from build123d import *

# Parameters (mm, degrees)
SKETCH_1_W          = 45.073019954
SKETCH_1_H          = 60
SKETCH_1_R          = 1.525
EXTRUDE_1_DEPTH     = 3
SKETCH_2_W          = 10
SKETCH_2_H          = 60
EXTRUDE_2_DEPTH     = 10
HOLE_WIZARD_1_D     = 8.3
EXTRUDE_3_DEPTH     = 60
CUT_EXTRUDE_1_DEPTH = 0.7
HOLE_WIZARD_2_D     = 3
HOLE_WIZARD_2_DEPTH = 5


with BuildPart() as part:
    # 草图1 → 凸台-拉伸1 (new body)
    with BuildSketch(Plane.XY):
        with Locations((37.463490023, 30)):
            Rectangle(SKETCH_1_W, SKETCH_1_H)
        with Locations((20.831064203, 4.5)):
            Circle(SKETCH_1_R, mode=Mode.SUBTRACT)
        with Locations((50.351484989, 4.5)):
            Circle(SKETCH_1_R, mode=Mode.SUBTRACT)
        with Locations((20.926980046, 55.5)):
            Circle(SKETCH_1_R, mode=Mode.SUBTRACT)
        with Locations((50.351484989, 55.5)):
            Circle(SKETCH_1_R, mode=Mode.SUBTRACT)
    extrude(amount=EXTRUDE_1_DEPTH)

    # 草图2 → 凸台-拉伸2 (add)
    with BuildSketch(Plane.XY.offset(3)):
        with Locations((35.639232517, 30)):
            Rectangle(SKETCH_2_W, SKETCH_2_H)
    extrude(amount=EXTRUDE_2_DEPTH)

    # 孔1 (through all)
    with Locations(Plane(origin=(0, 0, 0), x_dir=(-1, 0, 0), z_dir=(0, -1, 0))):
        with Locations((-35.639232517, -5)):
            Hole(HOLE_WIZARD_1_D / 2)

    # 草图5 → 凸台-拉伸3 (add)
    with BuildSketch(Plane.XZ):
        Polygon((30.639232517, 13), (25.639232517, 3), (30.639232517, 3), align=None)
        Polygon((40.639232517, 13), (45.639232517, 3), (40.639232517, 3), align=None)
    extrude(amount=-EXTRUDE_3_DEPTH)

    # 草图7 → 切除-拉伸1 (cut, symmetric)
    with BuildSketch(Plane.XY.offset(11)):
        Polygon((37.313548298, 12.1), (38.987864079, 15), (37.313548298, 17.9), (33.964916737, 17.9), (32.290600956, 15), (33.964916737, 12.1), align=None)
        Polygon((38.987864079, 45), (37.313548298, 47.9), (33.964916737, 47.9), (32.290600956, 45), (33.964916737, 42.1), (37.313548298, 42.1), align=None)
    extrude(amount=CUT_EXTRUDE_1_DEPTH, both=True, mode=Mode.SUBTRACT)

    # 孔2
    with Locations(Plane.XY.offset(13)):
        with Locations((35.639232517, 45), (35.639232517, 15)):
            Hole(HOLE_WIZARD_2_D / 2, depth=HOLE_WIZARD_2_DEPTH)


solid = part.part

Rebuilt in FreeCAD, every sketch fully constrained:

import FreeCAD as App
import Part
import Sketcher
from FreeCAD import Vector
Q = App.Units.Quantity

doc = App.newDocument("Part")
body = doc.addObject("PartDesign::Body", "Body")

sketch1 = body.newObject("Sketcher::SketchObject", "Sketch")
sketch1.AttachmentSupport = (doc.getObject("XY_Plane"), [""])
sketch1.MapMode = "FlatFace"
sketch1.addGeometry(Part.LineSegment(Vector(14.9, 60, 0), Vector(14.9, 0, 0)), False)
sketch1.addGeometry(Part.LineSegment(Vector(14.9, 0, 0), Vector(60, 0, 0)), False)
sketch1.addGeometry(Part.LineSegment(Vector(60, 0, 0), Vector(60, 60, 0)), False)
sketch1.addGeometry(Part.LineSegment(Vector(60, 60, 0), Vector(14.9, 60, 0)), False)
sketch1.addGeometry(Part.Circle(Vector(20.8, 4.5, 0), Vector(0, 0, 1), 1.5), False)
sketch1.addGeometry(Part.Circle(Vector(50.4, 4.5, 0), Vector(0, 0, 1), 1.5), False)
sketch1.addGeometry(Part.Circle(Vector(20.9, 55.5, 0), Vector(0, 0, 1), 1.5), False)
sketch1.addGeometry(Part.Circle(Vector(50.4, 55.5, 0), Vector(0, 0, 1), 1.5), False)
sketch1.addConstraint(Sketcher.Constraint("Coincident", 0, 2, 1, 1))
sketch1.addConstraint(Sketcher.Constraint("Coincident", 1, 2, 2, 1))
sketch1.addConstraint(Sketcher.Constraint("Coincident", 2, 2, 3, 1))
sketch1.addConstraint(Sketcher.Constraint("Coincident", 3, 2, 0, 1))
sketch1.addConstraint(Sketcher.Constraint("Vertical", 0))
sketch1.addConstraint(Sketcher.Constraint("Horizontal", 1))
sketch1.addConstraint(Sketcher.Constraint("Vertical", 2))
sketch1.addConstraint(Sketcher.Constraint("Horizontal", 3))
sketch1.addConstraint(Sketcher.Constraint("Equal", 4, 5))
sketch1.addConstraint(Sketcher.Constraint("Equal", 5, 6))
sketch1.addConstraint(Sketcher.Constraint("Equal", 6, 7))
sketch1.addConstraint(Sketcher.Constraint("PointOnObject", 0, 2, -1))
sketch1.addConstraint(Sketcher.Constraint("Horizontal", 4, 3, 5, 3))
sketch1.addConstraint(Sketcher.Constraint("Horizontal", 6, 3, 7, 3))
sketch1.addConstraint(Sketcher.Constraint("Vertical", 5, 3, 7, 3))
sketch1.addConstraint(Sketcher.Constraint("Diameter", 4, Q("3.05 mm")))
sketch1.addConstraint(Sketcher.Constraint("DistanceY", 0, 2, 0, 1, Q("60 mm")))
sketch1.addConstraint(Sketcher.Constraint("DistanceX", -1, 1, 1, 2, Q("60 mm")))
sketch1.addConstraint(Sketcher.Constraint("DistanceY", 4, 3, 6, 3, Q("51 mm")))
sketch1.addConstraint(Sketcher.Constraint("DistanceX", 0, 2, 6, 3, Q("6 mm")))
sketch1.addConstraint(Sketcher.Constraint("DistanceY", -1, 1, 4, 3, Q("4.5 mm")))
sketch1.addConstraint(Sketcher.Constraint("DistanceX", 1, 1, 1, 2, Q("45.07302 mm")))
sketch1.addConstraint(Sketcher.Constraint("DistanceX", 4, 3, 5, 3, Q("29.520421 mm")))
sketch1.addConstraint(Sketcher.Constraint("DistanceX", -1, 1, 4, 3, Q("20.831064 mm")))
pad1 = body.newObject("PartDesign::Pad", "Pad")
pad1.Profile = sketch1
pad1.Length = 3

sketch2 = body.newObject("Sketcher::SketchObject", "Sketch001")
sketch2.AttachmentSupport = (doc.getObject("XY_Plane"), [""])
sketch2.MapMode = "FlatFace"
sketch2.AttachmentOffset = App.Placement(Vector(0, 0, 3), App.Rotation())
sketch2.addGeometry(Part.LineSegment(Vector(31, 60, 0), Vector(31, 0, 0)), False)
sketch2.addGeometry(Part.LineSegment(Vector(31, 0, 0), Vector(41, 0, 0)), False)
sketch2.addGeometry(Part.LineSegment(Vector(41, 0, 0), Vector(41, 60, 0)), False)
sketch2.addGeometry(Part.LineSegment(Vector(41, 60, 0), Vector(31, 60, 0)), False)
sketch2.addConstraint(Sketcher.Constraint("Coincident", 0, 2, 1, 1))
sketch2.addConstraint(Sketcher.Constraint("Coincident", 1, 2, 2, 1))
sketch2.addConstraint(Sketcher.Constraint("Coincident", 2, 2, 3, 1))
sketch2.addConstraint(Sketcher.Constraint("Coincident", 3, 2, 0, 1))
sketch2.addConstraint(Sketcher.Constraint("Vertical", 0))
sketch2.addConstraint(Sketcher.Constraint("Horizontal", 1))
sketch2.addConstraint(Sketcher.Constraint("Vertical", 2))
sketch2.addConstraint(Sketcher.Constraint("Horizontal", 3))
sketch2.addConstraint(Sketcher.Constraint("PointOnObject", 0, 2, -1))
sketch2.addConstraint(Sketcher.Constraint("DistanceX", 1, 1, 1, 2, Q("10 mm")))
sketch2.addConstraint(Sketcher.Constraint("DistanceY", 0, 2, 0, 1, Q("60 mm")))
sketch2.addConstraint(Sketcher.Constraint("DistanceX", -1, 1, 0, 2, Q("30.639233 mm")))
pad2 = body.newObject("PartDesign::Pad", "Pad001")
pad2.Profile = sketch2
pad2.Length = 10

sketch3 = body.newObject("Sketcher::SketchObject", "Sketch002")
sketch3.AttachmentSupport = (doc.getObject("XZ_Plane"), [""])
sketch3.MapMode = "FlatFace"
sketch3.addGeometry(Part.Circle(Vector(35.6, 5, 0), Vector(0, 0, 1), 4.2), False)
sketch3.addConstraint(Sketcher.Constraint("Diameter", 0, Q("8.3 mm")))
sketch3.addConstraint(Sketcher.Constraint("DistanceY", -1, 1, 0, 3, Q("5 mm")))
sketch3.addConstraint(Sketcher.Constraint("DistanceX", -1, 1, 0, 3, Q("35.639233 mm")))
doc.recompute()
hole = body.newObject("PartDesign::Hole", "Hole")
hole.Profile = sketch3
hole.ThreadType = "None"
hole.Diameter = 8.3
hole.DepthType = "ThroughAll"

sketch4 = body.newObject("Sketcher::SketchObject", "Sketch003")
sketch4.AttachmentSupport = (doc.getObject("XZ_Plane"), [""])
sketch4.MapMode = "FlatFace"
sketch4.addGeometry(Part.LineSegment(Vector(31, 13, 0), Vector(26, 3, 0)), False)
sketch4.addGeometry(Part.LineSegment(Vector(26, 3, 0), Vector(31, 3, 0)), False)
sketch4.addGeometry(Part.LineSegment(Vector(31, 3, 0), Vector(31, 13, 0)), False)
sketch4.addGeometry(Part.LineSegment(Vector(46, 3, 0), Vector(41, 13, 0)), False)
sketch4.addGeometry(Part.LineSegment(Vector(41, 13, 0), Vector(41, 3, 0)), False)
sketch4.addGeometry(Part.LineSegment(Vector(41, 3, 0), Vector(46, 3, 0)), False)
sketch4.addConstraint(Sketcher.Constraint("Coincident", 0, 2, 1, 1))
sketch4.addConstraint(Sketcher.Constraint("Coincident", 1, 2, 2, 1))
sketch4.addConstraint(Sketcher.Constraint("Coincident", 2, 2, 0, 1))
sketch4.addConstraint(Sketcher.Constraint("Coincident", 3, 2, 4, 1))
sketch4.addConstraint(Sketcher.Constraint("Coincident", 4, 2, 5, 1))
sketch4.addConstraint(Sketcher.Constraint("Coincident", 5, 2, 3, 1))
sketch4.addConstraint(Sketcher.Constraint("Horizontal", 1))
sketch4.addConstraint(Sketcher.Constraint("Vertical", 2))
sketch4.addConstraint(Sketcher.Constraint("Vertical", 4))
sketch4.addConstraint(Sketcher.Constraint("Horizontal", 5))
sketch4.addConstraint(Sketcher.Constraint("Horizontal", 2, 2, 3, 2))
sketch4.addConstraint(Sketcher.Constraint("Horizontal", 1, 2, 4, 2))
sketch4.addConstraint(Sketcher.Constraint("Equal", 1, 5))
sketch4.addConstraint(Sketcher.Constraint("DistanceX", 1, 1, 1, 2, Q("5 mm")))
sketch4.addConstraint(Sketcher.Constraint("DistanceY", 2, 1, 2, 2, Q("10 mm")))
sketch4.addConstraint(Sketcher.Constraint("DistanceY", -1, 1, 0, 2, Q("3 mm")))
sketch4.addConstraint(Sketcher.Constraint("DistanceX", 2, 2, 3, 2, Q("10 mm")))
sketch4.addConstraint(Sketcher.Constraint("DistanceX", -1, 1, 0, 2, Q("25.639233 mm")))
pad3 = body.newObject("PartDesign::Pad", "Pad002")
pad3.Profile = sketch4
pad3.Length = 60
pad3.Reversed = True

sketch5 = body.newObject("Sketcher::SketchObject", "Sketch004")
sketch5.AttachmentSupport = (doc.getObject("XY_Plane"), [""])
sketch5.MapMode = "FlatFace"
sketch5.AttachmentOffset = App.Placement(Vector(0, 0, 11), App.Rotation())
sketch5.addGeometry(Part.LineSegment(Vector(37.3, 12.1, 0), Vector(39, 15, 0)), False)
sketch5.addGeometry(Part.LineSegment(Vector(39, 15, 0), Vector(37.3, 17.9, 0)), False)
sketch5.addGeometry(Part.LineSegment(Vector(37.3, 17.9, 0), Vector(34, 17.9, 0)), False)
sketch5.addGeometry(Part.LineSegment(Vector(34, 17.9, 0), Vector(32.3, 15, 0)), False)
sketch5.addGeometry(Part.LineSegment(Vector(32.3, 15, 0), Vector(34, 12.1, 0)), False)
sketch5.addGeometry(Part.LineSegment(Vector(34, 12.1, 0), Vector(37.3, 12.1, 0)), False)
sketch5.addGeometry(Part.LineSegment(Vector(39, 45, 0), Vector(37.3, 47.9, 0)), False)
sketch5.addGeometry(Part.LineSegment(Vector(37.3, 47.9, 0), Vector(34, 47.9, 0)), False)
sketch5.addGeometry(Part.LineSegment(Vector(34, 47.9, 0), Vector(32.3, 45, 0)), False)
sketch5.addGeometry(Part.LineSegment(Vector(32.3, 45, 0), Vector(34, 42.1, 0)), False)
sketch5.addGeometry(Part.LineSegment(Vector(34, 42.1, 0), Vector(37.3, 42.1, 0)), False)
sketch5.addGeometry(Part.LineSegment(Vector(37.3, 42.1, 0), Vector(39, 45, 0)), False)
sketch5.addConstraint(Sketcher.Constraint("Coincident", 0, 2, 1, 1))
sketch5.addConstraint(Sketcher.Constraint("Coincident", 1, 2, 2, 1))
sketch5.addConstraint(Sketcher.Constraint("Coincident", 2, 2, 3, 1))
sketch5.addConstraint(Sketcher.Constraint("Coincident", 3, 2, 4, 1))
sketch5.addConstraint(Sketcher.Constraint("Coincident", 4, 2, 5, 1))
sketch5.addConstraint(Sketcher.Constraint("Coincident", 5, 2, 0, 1))
sketch5.addConstraint(Sketcher.Constraint("Coincident", 6, 2, 7, 1))
sketch5.addConstraint(Sketcher.Constraint("Coincident", 7, 2, 8, 1))
sketch5.addConstraint(Sketcher.Constraint("Coincident", 8, 2, 9, 1))
sketch5.addConstraint(Sketcher.Constraint("Coincident", 9, 2, 10, 1))
sketch5.addConstraint(Sketcher.Constraint("Coincident", 10, 2, 11, 1))
sketch5.addConstraint(Sketcher.Constraint("Coincident", 11, 2, 6, 1))
sketch5.addConstraint(Sketcher.Constraint("Horizontal", 2))
sketch5.addConstraint(Sketcher.Constraint("Horizontal", 5))
sketch5.addConstraint(Sketcher.Constraint("Horizontal", 7))
sketch5.addConstraint(Sketcher.Constraint("Horizontal", 10))
sketch5.addConstraint(Sketcher.Constraint("Parallel", 0, 3))
sketch5.addConstraint(Sketcher.Constraint("Parallel", 1, 4))
sketch5.addConstraint(Sketcher.Constraint("Parallel", 4, 6))
sketch5.addConstraint(Sketcher.Constraint("Parallel", 3, 8))
sketch5.addConstraint(Sketcher.Constraint("Parallel", 6, 9))
sketch5.addConstraint(Sketcher.Constraint("Parallel", 8, 11))
sketch5.addConstraint(Sketcher.Constraint("Horizontal", 0, 2, 3, 2))
sketch5.addConstraint(Sketcher.Constraint("Horizontal", 8, 2, 11, 2))
sketch5.addConstraint(Sketcher.Constraint("Vertical", 2, 2, 4, 2))
sketch5.addConstraint(Sketcher.Constraint("Vertical", 1, 2, 5, 2))
sketch5.addConstraint(Sketcher.Constraint("Vertical", 5, 2, 6, 2))
sketch5.addConstraint(Sketcher.Constraint("Vertical", 4, 2, 7, 2))
sketch5.addConstraint(Sketcher.Constraint("Vertical", 3, 2, 8, 2))
sketch5.addConstraint(Sketcher.Constraint("Vertical", 7, 2, 9, 2))
sketch5.addConstraint(Sketcher.Constraint("Angle", 0, Q("60 deg")))
sketch5.addConstraint(Sketcher.Constraint("DistanceY", -1, 1, 0, 2, Q("15 mm")))
sketch5.addConstraint(Sketcher.Constraint("DistanceY", -1, 1, 8, 2, Q("45 mm")))
sketch5.addConstraint(Sketcher.Constraint("DistanceY", -1, 1, 1, 2, Q("17.9 mm")))
sketch5.addConstraint(Sketcher.Constraint("DistanceX", 2, 2, 2, 1, Q("3.348632 mm")))
sketch5.addConstraint(Sketcher.Constraint("DistanceX", -1, 1, 3, 2, Q("32.290601 mm")))
pocket1 = body.newObject("PartDesign::Pocket", "Pocket")
pocket1.Profile = sketch5
pocket1.Length = 1.4
pocket1.Midplane = True

sketch6 = body.newObject("Sketcher::SketchObject", "Sketch005")
sketch6.AttachmentSupport = (doc.getObject("XY_Plane"), [""])
sketch6.MapMode = "FlatFace"
sketch6.AttachmentOffset = App.Placement(Vector(0, 0, 13), App.Rotation())
sketch6.addGeometry(Part.Circle(Vector(35.6, 45, 0), Vector(0, 0, 1), 1.5), False)
sketch6.addGeometry(Part.Circle(Vector(35.6, 15, 0), Vector(0, 0, 1), 1.5), False)
sketch6.addConstraint(Sketcher.Constraint("Equal", 0, 1))
sketch6.addConstraint(Sketcher.Constraint("Vertical", 0, 3, 1, 3))
sketch6.addConstraint(Sketcher.Constraint("Diameter", 0, Q("3 mm")))
sketch6.addConstraint(Sketcher.Constraint("DistanceY", -1, 1, 0, 3, Q("45 mm")))
sketch6.addConstraint(Sketcher.Constraint("DistanceY", -1, 1, 1, 3, Q("15 mm")))
sketch6.addConstraint(Sketcher.Constraint("DistanceX", -1, 1, 0, 3, Q("35.639233 mm")))
doc.recompute()
hole2 = body.newObject("PartDesign::Hole", "Hole001")
hole2.Profile = sketch6
hole2.ThreadType = "None"
hole2.Diameter = 3
hole2.DepthType = "Dimension"
hole2.Depth = 5
hole2.DrillPoint = "Flat"

doc.recompute()
